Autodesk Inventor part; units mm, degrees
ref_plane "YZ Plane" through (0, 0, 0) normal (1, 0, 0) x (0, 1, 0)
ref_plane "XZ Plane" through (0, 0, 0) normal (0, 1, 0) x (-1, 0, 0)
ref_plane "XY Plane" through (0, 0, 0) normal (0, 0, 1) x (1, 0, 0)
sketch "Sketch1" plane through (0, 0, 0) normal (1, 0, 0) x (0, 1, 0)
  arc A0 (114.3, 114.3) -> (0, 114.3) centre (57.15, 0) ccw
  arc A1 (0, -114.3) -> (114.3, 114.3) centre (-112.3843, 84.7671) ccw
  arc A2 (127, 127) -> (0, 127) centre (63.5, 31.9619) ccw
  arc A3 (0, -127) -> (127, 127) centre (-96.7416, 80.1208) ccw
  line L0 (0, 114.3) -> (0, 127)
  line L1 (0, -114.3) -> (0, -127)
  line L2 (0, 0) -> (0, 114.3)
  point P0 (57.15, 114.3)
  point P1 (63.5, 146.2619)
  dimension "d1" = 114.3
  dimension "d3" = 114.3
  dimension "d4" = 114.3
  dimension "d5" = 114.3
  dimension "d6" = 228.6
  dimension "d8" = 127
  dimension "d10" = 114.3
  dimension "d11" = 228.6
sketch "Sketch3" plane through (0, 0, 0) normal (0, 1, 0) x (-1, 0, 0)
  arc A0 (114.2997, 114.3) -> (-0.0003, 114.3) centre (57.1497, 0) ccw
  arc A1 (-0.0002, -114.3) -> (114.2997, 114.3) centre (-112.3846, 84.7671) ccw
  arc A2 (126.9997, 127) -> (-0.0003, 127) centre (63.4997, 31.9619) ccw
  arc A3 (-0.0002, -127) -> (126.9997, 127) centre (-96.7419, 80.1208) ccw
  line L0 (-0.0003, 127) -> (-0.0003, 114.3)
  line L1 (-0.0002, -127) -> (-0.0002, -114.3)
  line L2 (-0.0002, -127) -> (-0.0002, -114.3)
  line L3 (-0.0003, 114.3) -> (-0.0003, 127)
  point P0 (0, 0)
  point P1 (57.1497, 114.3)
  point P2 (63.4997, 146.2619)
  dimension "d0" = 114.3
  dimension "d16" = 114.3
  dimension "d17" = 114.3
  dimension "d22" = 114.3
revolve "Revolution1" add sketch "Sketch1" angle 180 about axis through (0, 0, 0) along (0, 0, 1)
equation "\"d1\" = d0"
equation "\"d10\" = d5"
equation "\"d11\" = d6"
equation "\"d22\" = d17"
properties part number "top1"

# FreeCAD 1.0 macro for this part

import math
import FreeCAD as App
import Part
import Sketcher

V = App.Vector
Q = App.Units.Quantity

doc = App.newDocument("Part")
body = doc.addObject("PartDesign::Body", "Body")

sketch1 = body.newObject("Sketcher::SketchObject", "Sketch")
sketch1.AttachmentSupport = (doc.getObject("YZ_Plane"), [""])
sketch1.MapMode = "FlatFace"
sketch1.addGeometry([
    Part.ArcOfCircle(Part.Circle(V(57, 0, 0), V(0, 0, 1), 128), math.radians(63), math.radians(117)),
    Part.ArcOfCircle(Part.Circle(V(-112, 85, 0), V(0, 0, 1), 229), math.radians(-61), math.radians(7)),
    Part.LineSegment(V(0, -114, 0), V(0, -127, 0)),
    Part.ArcOfCircle(Part.Circle(V(-97, 80, 0), V(0, 0, 1), 229), math.radians(-65), math.radians(12)),
    Part.ArcOfCircle(Part.Circle(V(64, 32, 0), V(0, 0, 1), 114), math.radians(56), math.radians(124)),
    Part.LineSegment(V(0, 127, 0), V(0, 114, 0)),
], False)
sketch1.addConstraint([
    Sketcher.Constraint("Coincident", 0, 1, 1, 2),
    Sketcher.Constraint("Coincident", 1, 1, 2, 1),
    Sketcher.Constraint("Coincident", 2, 2, 3, 1),
    Sketcher.Constraint("Coincident", 3, 2, 4, 1),
    Sketcher.Constraint("Coincident", 4, 2, 5, 1),
    Sketcher.Constraint("Coincident", 5, 2, 0, 2),
    Sketcher.Constraint("Vertical", 2),
    Sketcher.Constraint("Vertical", 5),
    Sketcher.Constraint("Equal", 1, 3),
    Sketcher.Constraint("Symmetric", 2, 2, 4, 2, -1, 1),
    Sketcher.Constraint("Symmetric", 1, 1, 5, 2, -1),
    Sketcher.Constraint("PointOnObject", 0, 3, -1),
    Sketcher.Constraint("Horizontal", 3, 2, 4, 2),
    Sketcher.Constraint("Horizontal", 0, 1, 5, 2),
    Sketcher.Constraint("Radius", 1, Q("9 in")),
    Sketcher.Constraint("Radius", 4, Q("4.5 in")),
    Sketcher.Constraint("DistanceY", 2, 2, -1, 1, Q("5 in")),
    Sketcher.Constraint("DistanceX", -1, 1, 3, 2, Q("5 in")),
    Sketcher.Constraint("DistanceY", 1, 1, 0, 1, Q("9 in")),
    Sketcher.Constraint("DistanceX", -1, 1, 0, 1, Q("4.5 in")),
])
revolution = body.newObject("PartDesign::Revolution", "Revolution")
revolution.Profile = sketch1
revolution.ReferenceAxis = (sketch1, ["V_Axis"])
revolution.Angle = 180

doc.recompute()
